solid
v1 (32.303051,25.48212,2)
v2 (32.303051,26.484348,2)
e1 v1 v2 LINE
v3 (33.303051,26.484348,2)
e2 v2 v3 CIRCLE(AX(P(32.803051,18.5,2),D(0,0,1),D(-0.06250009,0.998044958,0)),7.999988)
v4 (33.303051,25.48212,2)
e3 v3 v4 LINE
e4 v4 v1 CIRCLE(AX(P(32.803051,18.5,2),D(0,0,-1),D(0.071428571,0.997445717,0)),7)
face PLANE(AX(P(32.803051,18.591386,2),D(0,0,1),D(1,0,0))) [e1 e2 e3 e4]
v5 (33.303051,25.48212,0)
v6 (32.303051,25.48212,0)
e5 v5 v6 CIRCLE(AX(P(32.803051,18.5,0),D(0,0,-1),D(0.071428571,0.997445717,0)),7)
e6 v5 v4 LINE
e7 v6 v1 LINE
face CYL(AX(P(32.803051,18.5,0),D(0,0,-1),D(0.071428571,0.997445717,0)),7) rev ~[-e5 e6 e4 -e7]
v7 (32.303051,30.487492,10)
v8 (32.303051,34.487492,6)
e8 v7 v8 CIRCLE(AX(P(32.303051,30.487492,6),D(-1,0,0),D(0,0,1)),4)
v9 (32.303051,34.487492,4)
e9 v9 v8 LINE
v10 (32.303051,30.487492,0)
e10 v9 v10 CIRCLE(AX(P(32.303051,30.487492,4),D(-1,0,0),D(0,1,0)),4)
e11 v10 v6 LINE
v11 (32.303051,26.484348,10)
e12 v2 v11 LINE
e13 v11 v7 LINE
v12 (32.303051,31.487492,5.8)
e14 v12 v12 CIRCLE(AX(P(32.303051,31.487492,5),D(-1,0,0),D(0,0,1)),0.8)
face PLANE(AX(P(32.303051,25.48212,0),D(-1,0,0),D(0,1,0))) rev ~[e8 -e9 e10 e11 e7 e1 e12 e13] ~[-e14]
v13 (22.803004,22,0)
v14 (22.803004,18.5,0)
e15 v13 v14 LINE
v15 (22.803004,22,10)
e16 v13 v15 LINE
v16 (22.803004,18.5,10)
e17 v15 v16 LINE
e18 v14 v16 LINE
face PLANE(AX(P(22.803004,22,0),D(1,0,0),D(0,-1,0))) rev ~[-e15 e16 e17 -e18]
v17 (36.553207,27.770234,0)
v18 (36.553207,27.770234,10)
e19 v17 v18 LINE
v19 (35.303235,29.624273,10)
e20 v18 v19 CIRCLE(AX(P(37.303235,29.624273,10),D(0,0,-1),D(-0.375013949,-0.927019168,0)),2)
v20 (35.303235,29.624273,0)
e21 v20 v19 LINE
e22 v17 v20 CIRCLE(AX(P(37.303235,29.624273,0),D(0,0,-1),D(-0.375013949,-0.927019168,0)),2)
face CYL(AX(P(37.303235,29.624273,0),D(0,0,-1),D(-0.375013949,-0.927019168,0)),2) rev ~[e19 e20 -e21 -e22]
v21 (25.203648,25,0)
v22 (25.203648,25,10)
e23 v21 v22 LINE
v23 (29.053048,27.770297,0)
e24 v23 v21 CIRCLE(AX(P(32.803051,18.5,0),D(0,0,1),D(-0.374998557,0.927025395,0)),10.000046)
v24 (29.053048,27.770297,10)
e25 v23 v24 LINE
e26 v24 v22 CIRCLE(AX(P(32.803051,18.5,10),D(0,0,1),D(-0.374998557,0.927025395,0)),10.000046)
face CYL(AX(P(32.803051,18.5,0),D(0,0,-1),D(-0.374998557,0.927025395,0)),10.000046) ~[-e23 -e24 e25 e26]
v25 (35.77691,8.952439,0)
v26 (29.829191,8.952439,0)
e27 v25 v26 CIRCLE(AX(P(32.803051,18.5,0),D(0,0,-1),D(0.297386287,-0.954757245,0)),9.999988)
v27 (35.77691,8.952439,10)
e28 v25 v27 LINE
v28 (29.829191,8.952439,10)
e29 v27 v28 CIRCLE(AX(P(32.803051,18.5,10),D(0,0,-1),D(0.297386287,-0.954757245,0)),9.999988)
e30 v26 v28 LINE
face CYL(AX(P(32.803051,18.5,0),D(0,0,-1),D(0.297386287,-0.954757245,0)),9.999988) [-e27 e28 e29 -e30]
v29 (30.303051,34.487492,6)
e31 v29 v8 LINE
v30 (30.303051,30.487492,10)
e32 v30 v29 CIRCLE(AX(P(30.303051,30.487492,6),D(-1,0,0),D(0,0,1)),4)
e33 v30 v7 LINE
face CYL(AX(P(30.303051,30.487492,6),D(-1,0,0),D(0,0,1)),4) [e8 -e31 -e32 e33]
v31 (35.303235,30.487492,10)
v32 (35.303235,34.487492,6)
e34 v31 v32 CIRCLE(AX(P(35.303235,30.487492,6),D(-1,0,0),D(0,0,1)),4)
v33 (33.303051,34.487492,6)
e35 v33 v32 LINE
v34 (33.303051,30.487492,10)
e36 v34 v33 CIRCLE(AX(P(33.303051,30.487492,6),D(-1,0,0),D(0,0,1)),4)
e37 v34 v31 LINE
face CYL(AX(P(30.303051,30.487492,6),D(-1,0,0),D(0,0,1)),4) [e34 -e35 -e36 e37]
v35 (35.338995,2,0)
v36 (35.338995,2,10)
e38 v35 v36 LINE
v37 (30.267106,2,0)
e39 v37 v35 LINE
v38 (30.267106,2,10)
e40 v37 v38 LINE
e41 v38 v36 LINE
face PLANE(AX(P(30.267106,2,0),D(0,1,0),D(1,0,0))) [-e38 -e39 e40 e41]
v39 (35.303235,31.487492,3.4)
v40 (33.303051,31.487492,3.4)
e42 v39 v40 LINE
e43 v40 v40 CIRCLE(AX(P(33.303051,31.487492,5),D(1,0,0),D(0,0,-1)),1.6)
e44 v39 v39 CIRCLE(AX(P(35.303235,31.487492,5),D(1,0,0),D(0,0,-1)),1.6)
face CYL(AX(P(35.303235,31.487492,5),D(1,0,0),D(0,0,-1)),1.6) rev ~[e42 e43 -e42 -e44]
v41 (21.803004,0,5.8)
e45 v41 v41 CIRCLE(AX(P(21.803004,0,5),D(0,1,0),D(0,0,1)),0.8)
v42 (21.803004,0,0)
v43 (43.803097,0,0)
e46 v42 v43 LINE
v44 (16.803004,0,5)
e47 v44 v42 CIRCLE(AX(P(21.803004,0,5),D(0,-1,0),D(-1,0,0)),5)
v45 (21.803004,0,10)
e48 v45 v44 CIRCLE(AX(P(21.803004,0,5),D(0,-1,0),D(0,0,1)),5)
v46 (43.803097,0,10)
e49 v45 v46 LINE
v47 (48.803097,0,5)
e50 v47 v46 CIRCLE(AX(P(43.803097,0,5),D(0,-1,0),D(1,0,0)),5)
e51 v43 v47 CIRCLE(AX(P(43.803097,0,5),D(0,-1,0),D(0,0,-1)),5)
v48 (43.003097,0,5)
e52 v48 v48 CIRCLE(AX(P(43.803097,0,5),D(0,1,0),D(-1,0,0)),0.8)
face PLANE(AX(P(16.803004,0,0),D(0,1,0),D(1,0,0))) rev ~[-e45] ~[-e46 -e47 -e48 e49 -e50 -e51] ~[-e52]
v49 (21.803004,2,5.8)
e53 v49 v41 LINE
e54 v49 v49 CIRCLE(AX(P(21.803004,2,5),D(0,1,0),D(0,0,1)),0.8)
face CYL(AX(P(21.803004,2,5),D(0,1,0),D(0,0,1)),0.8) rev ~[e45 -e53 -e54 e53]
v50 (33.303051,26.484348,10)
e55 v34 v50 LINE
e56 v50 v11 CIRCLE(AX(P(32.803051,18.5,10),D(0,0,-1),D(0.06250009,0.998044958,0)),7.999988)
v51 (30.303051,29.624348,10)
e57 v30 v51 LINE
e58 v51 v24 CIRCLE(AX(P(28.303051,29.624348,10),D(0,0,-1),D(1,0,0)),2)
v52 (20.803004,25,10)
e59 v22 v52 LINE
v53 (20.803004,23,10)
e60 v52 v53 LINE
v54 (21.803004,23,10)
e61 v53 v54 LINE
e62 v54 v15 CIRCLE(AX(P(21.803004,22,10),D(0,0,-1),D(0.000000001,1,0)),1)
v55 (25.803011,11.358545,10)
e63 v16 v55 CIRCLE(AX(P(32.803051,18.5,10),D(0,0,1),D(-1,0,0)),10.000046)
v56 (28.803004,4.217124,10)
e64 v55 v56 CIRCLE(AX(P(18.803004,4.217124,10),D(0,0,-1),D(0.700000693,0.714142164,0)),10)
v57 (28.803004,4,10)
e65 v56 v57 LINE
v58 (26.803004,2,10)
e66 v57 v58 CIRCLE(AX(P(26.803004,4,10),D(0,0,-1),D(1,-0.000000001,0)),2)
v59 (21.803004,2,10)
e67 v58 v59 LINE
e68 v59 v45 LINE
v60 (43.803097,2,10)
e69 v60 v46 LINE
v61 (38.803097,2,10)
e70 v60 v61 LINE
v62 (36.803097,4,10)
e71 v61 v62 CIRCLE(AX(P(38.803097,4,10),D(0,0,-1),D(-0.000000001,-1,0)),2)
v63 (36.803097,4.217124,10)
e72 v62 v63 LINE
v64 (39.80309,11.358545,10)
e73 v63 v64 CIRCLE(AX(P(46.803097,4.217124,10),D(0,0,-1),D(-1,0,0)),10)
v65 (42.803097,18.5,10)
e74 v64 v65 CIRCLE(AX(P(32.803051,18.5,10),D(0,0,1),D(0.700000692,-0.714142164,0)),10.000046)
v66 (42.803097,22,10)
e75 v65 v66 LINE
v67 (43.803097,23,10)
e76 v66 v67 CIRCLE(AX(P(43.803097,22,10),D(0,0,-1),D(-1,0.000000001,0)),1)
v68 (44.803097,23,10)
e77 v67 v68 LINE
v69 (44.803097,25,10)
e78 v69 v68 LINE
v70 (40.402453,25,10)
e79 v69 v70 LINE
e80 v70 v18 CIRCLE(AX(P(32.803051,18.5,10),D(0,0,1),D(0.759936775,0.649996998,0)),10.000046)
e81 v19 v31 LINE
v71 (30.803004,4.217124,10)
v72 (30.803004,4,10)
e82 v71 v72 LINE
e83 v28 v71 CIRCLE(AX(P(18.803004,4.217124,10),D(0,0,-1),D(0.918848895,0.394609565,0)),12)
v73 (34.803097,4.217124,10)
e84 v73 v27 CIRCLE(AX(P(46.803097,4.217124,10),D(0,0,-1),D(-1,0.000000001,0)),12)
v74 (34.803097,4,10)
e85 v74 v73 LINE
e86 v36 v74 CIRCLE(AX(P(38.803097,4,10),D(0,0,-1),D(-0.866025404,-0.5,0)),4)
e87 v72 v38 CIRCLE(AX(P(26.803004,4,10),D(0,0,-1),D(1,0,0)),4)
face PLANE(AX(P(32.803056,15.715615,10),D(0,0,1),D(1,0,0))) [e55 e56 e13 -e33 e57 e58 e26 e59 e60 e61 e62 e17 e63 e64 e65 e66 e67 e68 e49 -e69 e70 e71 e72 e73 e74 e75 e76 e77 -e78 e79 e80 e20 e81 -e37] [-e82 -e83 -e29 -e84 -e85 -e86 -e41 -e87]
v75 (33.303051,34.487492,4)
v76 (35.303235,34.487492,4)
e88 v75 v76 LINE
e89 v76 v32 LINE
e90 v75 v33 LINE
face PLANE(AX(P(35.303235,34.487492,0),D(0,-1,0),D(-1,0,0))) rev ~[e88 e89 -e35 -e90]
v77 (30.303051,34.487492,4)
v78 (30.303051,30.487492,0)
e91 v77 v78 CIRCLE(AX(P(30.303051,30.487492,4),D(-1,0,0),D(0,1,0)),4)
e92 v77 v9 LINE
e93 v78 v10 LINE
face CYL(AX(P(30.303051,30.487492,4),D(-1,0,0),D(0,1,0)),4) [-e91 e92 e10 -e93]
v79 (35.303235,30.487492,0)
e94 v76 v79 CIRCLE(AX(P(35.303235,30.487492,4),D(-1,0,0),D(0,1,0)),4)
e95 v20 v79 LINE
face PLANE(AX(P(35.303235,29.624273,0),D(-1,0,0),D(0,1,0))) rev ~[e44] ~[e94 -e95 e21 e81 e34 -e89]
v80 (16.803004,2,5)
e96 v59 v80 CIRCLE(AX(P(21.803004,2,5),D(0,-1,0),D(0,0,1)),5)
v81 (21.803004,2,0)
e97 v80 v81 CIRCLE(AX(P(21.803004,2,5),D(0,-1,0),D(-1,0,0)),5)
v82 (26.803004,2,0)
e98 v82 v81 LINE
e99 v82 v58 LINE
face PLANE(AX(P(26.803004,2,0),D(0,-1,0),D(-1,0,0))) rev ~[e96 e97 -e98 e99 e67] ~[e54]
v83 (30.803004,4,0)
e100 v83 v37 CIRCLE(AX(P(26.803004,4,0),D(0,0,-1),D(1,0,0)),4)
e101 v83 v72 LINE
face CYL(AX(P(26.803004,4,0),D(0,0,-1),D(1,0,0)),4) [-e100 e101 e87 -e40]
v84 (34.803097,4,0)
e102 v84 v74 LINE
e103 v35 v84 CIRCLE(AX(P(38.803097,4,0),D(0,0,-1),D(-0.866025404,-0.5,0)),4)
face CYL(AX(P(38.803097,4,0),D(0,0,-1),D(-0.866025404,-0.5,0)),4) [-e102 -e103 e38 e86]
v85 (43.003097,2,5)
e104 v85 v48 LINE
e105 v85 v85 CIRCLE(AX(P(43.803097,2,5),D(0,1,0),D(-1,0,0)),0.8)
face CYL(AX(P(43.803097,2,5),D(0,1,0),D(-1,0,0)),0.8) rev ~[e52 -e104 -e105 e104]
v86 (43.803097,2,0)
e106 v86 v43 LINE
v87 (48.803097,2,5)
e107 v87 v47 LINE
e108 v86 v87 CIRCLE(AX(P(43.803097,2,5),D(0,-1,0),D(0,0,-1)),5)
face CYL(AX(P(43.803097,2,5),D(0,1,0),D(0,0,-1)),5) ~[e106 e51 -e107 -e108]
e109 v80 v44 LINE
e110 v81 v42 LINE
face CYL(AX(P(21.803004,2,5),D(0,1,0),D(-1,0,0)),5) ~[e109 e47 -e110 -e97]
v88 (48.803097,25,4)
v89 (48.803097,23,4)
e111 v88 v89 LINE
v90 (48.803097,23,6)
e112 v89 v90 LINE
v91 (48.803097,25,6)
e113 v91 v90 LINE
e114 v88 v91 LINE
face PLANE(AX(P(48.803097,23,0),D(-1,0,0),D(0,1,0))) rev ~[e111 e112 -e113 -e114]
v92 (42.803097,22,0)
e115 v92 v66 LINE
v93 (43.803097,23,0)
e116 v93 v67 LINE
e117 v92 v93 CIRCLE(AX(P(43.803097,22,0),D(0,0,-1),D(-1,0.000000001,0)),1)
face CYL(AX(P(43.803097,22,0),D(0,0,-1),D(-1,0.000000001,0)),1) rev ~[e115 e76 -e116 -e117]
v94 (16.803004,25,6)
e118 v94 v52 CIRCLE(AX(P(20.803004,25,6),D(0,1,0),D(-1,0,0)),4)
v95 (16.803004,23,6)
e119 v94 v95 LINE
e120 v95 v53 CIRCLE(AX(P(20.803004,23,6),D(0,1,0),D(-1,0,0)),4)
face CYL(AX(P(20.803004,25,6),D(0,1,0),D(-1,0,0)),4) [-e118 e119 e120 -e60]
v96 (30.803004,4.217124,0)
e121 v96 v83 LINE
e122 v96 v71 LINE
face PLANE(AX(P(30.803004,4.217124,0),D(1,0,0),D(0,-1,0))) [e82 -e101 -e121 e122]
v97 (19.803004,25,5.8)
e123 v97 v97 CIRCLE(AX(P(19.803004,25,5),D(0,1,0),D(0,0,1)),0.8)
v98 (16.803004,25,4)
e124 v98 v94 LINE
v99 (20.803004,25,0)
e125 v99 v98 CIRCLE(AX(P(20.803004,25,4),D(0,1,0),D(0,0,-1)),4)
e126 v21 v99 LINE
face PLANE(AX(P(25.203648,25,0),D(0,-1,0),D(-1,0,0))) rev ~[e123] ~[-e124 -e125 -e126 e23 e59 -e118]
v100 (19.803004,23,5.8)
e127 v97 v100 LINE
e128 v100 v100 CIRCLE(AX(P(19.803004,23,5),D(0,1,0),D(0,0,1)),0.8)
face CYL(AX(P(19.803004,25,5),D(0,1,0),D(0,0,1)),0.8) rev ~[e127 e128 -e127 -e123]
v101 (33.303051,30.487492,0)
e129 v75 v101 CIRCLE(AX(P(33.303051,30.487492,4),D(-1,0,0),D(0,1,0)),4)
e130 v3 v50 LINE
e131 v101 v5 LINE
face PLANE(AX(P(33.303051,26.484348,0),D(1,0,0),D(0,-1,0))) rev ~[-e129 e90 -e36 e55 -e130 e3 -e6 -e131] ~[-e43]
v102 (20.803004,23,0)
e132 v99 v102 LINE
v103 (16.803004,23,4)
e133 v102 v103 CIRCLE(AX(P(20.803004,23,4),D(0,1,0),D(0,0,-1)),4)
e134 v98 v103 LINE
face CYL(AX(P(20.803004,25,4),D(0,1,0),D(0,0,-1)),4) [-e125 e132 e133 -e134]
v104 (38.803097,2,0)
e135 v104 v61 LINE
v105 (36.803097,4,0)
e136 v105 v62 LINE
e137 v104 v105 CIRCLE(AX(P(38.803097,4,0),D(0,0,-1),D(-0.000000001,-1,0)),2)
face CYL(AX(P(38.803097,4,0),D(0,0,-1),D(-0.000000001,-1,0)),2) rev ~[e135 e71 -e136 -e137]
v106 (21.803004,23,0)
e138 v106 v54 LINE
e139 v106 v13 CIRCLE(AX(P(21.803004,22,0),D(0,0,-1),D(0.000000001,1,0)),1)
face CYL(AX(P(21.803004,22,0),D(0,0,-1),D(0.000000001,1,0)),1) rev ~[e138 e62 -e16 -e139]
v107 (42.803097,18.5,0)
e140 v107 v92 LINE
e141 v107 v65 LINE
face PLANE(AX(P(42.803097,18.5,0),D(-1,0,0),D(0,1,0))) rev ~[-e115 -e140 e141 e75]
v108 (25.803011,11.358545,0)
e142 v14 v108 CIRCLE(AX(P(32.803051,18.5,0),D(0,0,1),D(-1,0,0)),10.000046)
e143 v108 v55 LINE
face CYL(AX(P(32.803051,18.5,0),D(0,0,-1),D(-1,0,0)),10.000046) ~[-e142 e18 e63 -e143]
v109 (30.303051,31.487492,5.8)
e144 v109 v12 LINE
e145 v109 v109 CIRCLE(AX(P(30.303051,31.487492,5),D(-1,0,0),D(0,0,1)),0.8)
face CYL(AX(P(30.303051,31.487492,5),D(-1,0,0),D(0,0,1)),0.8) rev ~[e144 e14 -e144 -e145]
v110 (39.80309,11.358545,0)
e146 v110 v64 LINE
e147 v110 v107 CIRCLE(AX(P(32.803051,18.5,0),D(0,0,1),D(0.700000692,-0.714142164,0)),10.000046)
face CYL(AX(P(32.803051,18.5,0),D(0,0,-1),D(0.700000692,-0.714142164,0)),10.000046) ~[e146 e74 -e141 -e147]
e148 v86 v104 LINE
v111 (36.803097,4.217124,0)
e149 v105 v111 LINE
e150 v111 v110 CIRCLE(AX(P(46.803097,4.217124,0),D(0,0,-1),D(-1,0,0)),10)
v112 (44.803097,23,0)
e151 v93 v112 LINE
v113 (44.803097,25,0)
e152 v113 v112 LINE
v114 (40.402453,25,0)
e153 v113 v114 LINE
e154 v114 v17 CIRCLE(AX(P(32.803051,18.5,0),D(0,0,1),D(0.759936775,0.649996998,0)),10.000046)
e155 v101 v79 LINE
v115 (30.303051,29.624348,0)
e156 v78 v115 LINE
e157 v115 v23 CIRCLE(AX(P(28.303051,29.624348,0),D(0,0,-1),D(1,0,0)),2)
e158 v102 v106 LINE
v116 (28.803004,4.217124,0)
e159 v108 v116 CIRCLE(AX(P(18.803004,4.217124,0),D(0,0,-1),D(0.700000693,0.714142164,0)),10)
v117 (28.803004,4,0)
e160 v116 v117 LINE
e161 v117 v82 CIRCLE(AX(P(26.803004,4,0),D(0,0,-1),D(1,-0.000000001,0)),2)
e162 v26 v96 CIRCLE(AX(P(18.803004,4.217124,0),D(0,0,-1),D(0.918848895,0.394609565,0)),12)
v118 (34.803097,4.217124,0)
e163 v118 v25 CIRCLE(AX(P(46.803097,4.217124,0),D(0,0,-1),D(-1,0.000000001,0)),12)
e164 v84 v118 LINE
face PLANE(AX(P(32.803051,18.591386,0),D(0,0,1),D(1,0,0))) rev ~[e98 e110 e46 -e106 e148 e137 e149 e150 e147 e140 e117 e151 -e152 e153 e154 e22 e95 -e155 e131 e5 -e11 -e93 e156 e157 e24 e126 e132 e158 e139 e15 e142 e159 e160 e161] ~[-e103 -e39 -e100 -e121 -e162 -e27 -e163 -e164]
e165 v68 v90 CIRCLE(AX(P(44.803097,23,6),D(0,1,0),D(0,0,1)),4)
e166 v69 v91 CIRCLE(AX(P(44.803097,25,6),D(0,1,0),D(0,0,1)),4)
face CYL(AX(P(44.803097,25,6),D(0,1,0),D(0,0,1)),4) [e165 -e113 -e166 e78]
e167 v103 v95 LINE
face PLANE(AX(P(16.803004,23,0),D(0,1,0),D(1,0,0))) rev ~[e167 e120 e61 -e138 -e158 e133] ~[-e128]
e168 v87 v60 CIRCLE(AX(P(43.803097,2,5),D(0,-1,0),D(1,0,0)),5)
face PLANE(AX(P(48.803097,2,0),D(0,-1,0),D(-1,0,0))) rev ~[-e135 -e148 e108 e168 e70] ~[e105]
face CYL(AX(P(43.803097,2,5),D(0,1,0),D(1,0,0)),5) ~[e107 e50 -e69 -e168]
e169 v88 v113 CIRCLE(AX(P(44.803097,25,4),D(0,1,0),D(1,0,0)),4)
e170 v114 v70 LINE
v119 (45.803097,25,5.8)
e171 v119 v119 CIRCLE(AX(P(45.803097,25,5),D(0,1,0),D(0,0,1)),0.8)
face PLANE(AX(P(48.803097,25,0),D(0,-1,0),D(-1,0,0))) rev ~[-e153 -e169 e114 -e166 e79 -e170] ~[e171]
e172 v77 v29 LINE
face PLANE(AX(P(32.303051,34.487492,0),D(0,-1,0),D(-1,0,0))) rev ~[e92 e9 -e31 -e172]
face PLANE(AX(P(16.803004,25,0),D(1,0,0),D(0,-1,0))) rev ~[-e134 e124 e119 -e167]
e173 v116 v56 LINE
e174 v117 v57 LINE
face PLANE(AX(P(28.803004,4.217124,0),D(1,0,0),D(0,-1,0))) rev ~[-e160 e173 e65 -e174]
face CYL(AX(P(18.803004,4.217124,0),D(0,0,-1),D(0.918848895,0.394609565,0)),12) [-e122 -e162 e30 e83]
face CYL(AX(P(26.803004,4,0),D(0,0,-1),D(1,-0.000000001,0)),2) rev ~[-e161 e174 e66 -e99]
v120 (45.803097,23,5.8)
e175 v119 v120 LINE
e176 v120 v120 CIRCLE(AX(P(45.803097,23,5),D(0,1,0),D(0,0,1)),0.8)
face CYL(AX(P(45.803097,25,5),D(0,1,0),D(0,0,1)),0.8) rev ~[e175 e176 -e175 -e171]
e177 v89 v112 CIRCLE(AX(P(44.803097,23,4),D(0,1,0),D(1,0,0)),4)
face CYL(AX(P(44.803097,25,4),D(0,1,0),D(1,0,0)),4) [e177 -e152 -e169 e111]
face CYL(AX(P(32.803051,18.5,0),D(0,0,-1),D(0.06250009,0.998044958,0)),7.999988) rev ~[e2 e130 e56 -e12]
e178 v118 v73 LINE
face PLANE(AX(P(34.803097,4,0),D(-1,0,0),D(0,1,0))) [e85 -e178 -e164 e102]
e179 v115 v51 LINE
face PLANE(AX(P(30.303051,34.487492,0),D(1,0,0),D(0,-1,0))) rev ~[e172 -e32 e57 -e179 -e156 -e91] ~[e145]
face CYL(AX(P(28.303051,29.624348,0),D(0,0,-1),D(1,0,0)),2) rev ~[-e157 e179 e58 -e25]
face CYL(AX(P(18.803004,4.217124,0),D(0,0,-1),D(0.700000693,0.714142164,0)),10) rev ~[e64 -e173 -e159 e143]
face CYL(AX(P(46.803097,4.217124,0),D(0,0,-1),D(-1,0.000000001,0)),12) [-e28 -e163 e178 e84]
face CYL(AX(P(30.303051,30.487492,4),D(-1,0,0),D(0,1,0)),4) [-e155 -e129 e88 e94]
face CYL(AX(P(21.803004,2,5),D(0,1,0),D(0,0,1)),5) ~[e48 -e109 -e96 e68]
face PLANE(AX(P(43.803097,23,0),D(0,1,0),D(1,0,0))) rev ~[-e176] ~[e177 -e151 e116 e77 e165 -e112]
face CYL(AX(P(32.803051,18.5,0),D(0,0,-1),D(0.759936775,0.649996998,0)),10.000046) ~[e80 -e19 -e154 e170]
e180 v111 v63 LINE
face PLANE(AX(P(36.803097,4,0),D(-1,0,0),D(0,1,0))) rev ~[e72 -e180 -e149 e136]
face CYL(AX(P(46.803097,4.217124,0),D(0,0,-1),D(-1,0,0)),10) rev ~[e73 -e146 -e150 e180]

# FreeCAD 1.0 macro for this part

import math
import FreeCAD as App
import Part
import Sketcher
from FreeCAD import Vector
Q = App.Units.Quantity

doc = App.newDocument("Part")
body = doc.addObject("PartDesign::Body", "Body")

sketch1 = doc.addObject("Sketcher::SketchObject", "Sketch")
body.addObject(sketch1)
sketch1.AttachmentSupport = (doc.XY_Plane, [""])
sketch1.MapMode = "FlatFace"
sketch1.addGeometry(Part.LineSegment(Vector(16.8, 0, 0), Vector(48.8, 0, 0)), False)
sketch1.addGeometry(Part.LineSegment(Vector(48.8, 0, 0), Vector(48.8, 2, 0)), False)
sketch1.addGeometry(Part.LineSegment(Vector(48.8, 2, 0), Vector(38.8, 2, 0)), False)
sketch1.addGeometry(Part.ArcOfCircle(Part.Circle(Vector(38.8, 4, 0), Vector(0, 0, 1), 2), math.radians(-180), math.radians(-90)), False)
sketch1.addGeometry(Part.LineSegment(Vector(36.8, 4, 0), Vector(36.8, 4.22, 0)), False)
sketch1.addGeometry(Part.ArcOfCircle(Part.Circle(Vector(46.8, 4.22, 0), Vector(0, 0, 1), 10), math.radians(134), math.radians(180)), False)
sketch1.addGeometry(Part.ArcOfCircle(Part.Circle(Vector(32.8, 18.5, 0), Vector(0, 0, 1), 10), math.radians(-46), math.radians(0)), False)
sketch1.addGeometry(Part.LineSegment(Vector(42.8, 18.5, 0), Vector(42.8, 22, 0)), False)
sketch1.addGeometry(Part.ArcOfCircle(Part.Circle(Vector(43.8, 22, 0), Vector(0, 0, 1), 1), math.radians(90), math.radians(180)), False)
sketch1.addGeometry(Part.LineSegment(Vector(43.8, 23, 0), Vector(48.8, 23, 0)), False)
sketch1.addGeometry(Part.LineSegment(Vector(48.8, 23, 0), Vector(48.8, 25, 0)), False)
sketch1.addGeometry(Part.LineSegment(Vector(48.8, 25, 0), Vector(40.4, 25, 0)), False)
sketch1.addGeometry(Part.ArcOfCircle(Part.Circle(Vector(32.8, 18.5, 0), Vector(0, 0, 1), 10), math.radians(41), math.radians(68)), False)
sketch1.addGeometry(Part.ArcOfCircle(Part.Circle(Vector(37.3, 29.62, 0), Vector(0, 0, 1), 2), math.radians(180), math.radians(248)), False)
sketch1.addGeometry(Part.LineSegment(Vector(35.3, 29.62, 0), Vector(35.3, 34.49, 0)), False)
sketch1.addGeometry(Part.LineSegment(Vector(35.3, 34.49, 0), Vector(33.3, 34.49, 0)), False)
sketch1.addGeometry(Part.LineSegment(Vector(33.3, 34.49, 0), Vector(33.3, 26.48, 0)), False)
sketch1.addGeometry(Part.ArcOfCircle(Part.Circle(Vector(32.8, 18.5, 0), Vector(0, 0, 1), 8), math.radians(94), math.radians(446)), False)
sketch1.addGeometry(Part.LineSegment(Vector(32.3, 26.48, 0), Vector(32.3, 34.49, 0)), False)
sketch1.addGeometry(Part.LineSegment(Vector(32.3, 34.49, 0), Vector(30.3, 34.49, 0)), False)
sketch1.addGeometry(Part.LineSegment(Vector(30.3, 34.49, 0), Vector(30.3, 29.62, 0)), False)
sketch1.addGeometry(Part.ArcOfCircle(Part.Circle(Vector(28.3, 29.62, 0), Vector(0, 0, 1), 2), math.radians(-68), math.radians(0)), False)
sketch1.addGeometry(Part.ArcOfCircle(Part.Circle(Vector(32.8, 18.5, 0), Vector(0, 0, 1), 10), math.radians(112), math.radians(139)), False)
sketch1.addGeometry(Part.LineSegment(Vector(25.2, 25, 0), Vector(16.8, 25, 0)), False)
sketch1.addGeometry(Part.LineSegment(Vector(16.8, 25, 0), Vector(16.8, 23, 0)), False)
sketch1.addGeometry(Part.LineSegment(Vector(16.8, 23, 0), Vector(21.8, 23, 0)), False)
sketch1.addGeometry(Part.ArcOfCircle(Part.Circle(Vector(21.8, 22, 0), Vector(0, 0, 1), 1), math.radians(0), math.radians(90)), False)
sketch1.addGeometry(Part.LineSegment(Vector(22.8, 22, 0), Vector(22.8, 18.5, 0)), False)
sketch1.addGeometry(Part.ArcOfCircle(Part.Circle(Vector(32.8, 18.5, 0), Vector(0, 0, 1), 10), math.radians(180), math.radians(226)), False)
sketch1.addGeometry(Part.ArcOfCircle(Part.Circle(Vector(18.8, 4.22, 0), Vector(0, 0, 1), 10), math.radians(0), math.radians(46)), False)
sketch1.addGeometry(Part.LineSegment(Vector(28.8, 4.22, 0), Vector(28.8, 4, 0)), False)
sketch1.addGeometry(Part.ArcOfCircle(Part.Circle(Vector(26.8, 4, 0), Vector(0, 0, 1), 2), math.radians(-90), math.radians(0)), False)
sketch1.addGeometry(Part.LineSegment(Vector(26.8, 2, 0), Vector(16.8, 2, 0)), False)
sketch1.addGeometry(Part.LineSegment(Vector(16.8, 2, 0), Vector(16.8, 0, 0)), False)
sketch1.addGeometry(Part.LineSegment(Vector(34.8, 4.22, 0), Vector(34.8, 4, 0)), False)
sketch1.addGeometry(Part.ArcOfCircle(Part.Circle(Vector(38.8, 4, 0), Vector(0, 0, 1), 4), math.radians(-180), math.radians(-150)), False)
sketch1.addGeometry(Part.LineSegment(Vector(35.34, 2, 0), Vector(30.27, 2, 0)), False)
sketch1.addGeometry(Part.ArcOfCircle(Part.Circle(Vector(26.8, 4, 0), Vector(0, 0, 1), 4), math.radians(-30), math.radians(0)), False)
sketch1.addGeometry(Part.LineSegment(Vector(30.8, 4, 0), Vector(30.8, 4.22, 0)), False)
sketch1.addGeometry(Part.ArcOfCircle(Part.Circle(Vector(18.8, 4.22, 0), Vector(0, 0, 1), 12), math.radians(0), math.radians(23)), False)
sketch1.addGeometry(Part.ArcOfCircle(Part.Circle(Vector(32.8, 18.5, 0), Vector(0, 0, 1), 10), math.radians(-107), math.radians(-73)), False)
sketch1.addGeometry(Part.ArcOfCircle(Part.Circle(Vector(46.8, 4.22, 0), Vector(0, 0, 1), 12), math.radians(157), math.radians(180)), False)
sketch1.addConstraint(Sketcher.Constraint("Coincident", 0, 2, 1, 1))
sketch1.addConstraint(Sketcher.Constraint("Coincident", 1, 2, 2, 1))
sketch1.addConstraint(Sketcher.Constraint("Tangent", 2, 2, 3, 2))
sketch1.addConstraint(Sketcher.Constraint("Tangent", 3, 1, 4, 1))
sketch1.addConstraint(Sketcher.Constraint("Tangent", 4, 2, 5, 2))
sketch1.addConstraint(Sketcher.Constraint("Tangent", 5, 1, 6, 1))
sketch1.addConstraint(Sketcher.Constraint("Tangent", 6, 2, 7, 1))
sketch1.addConstraint(Sketcher.Constraint("Tangent", 7, 2, 8, 2))
sketch1.addConstraint(Sketcher.Constraint("Tangent", 8, 1, 9, 1))
sketch1.addConstraint(Sketcher.Constraint("Coincident", 9, 2, 10, 1))
sketch1.addConstraint(Sketcher.Constraint("Coincident", 10, 2, 11, 1))
sketch1.addConstraint(Sketcher.Constraint("Coincident", 11, 2, 12, 1))
sketch1.addConstraint(Sketcher.Constraint("Tangent", 12, 2, 13, 2))
sketch1.addConstraint(Sketcher.Constraint("Tangent", 13, 1, 14, 1))
sketch1.addConstraint(Sketcher.Constraint("Coincident", 14, 2, 15, 1))
sketch1.addConstraint(Sketcher.Constraint("Coincident", 15, 2, 16, 1))
sketch1.addConstraint(Sketcher.Constraint("Coincident", 16, 2, 17, 2))
sketch1.addConstraint(Sketcher.Constraint("Coincident", 17, 1, 18, 1))
sketch1.addConstraint(Sketcher.Constraint("Coincident", 18, 2, 19, 1))
sketch1.addConstraint(Sketcher.Constraint("Coincident", 19, 2, 20, 1))
sketch1.addConstraint(Sketcher.Constraint("Tangent", 20, 2, 21, 2))
sketch1.addConstraint(Sketcher.Constraint("Tangent", 21, 1, 22, 1))
sketch1.addConstraint(Sketcher.Constraint("Coincident", 22, 2, 23, 1))
sketch1.addConstraint(Sketcher.Constraint("Coincident", 23, 2, 24, 1))
sketch1.addConstraint(Sketcher.Constraint("Coincident", 24, 2, 25, 1))
sketch1.addConstraint(Sketcher.Constraint("Tangent", 25, 2, 26, 2))
sketch1.addConstraint(Sketcher.Constraint("Tangent", 26, 1, 27, 1))
sketch1.addConstraint(Sketcher.Constraint("Tangent", 27, 2, 28, 1))
sketch1.addConstraint(Sketcher.Constraint("Tangent", 28, 2, 29, 2))
sketch1.addConstraint(Sketcher.Constraint("Tangent", 29, 1, 30, 1))
sketch1.addConstraint(Sketcher.Constraint("Tangent", 30, 2, 31, 2))
sketch1.addConstraint(Sketcher.Constraint("Tangent", 31, 1, 32, 1))
sketch1.addConstraint(Sketcher.Constraint("Coincident", 32, 2, 33, 1))
sketch1.addConstraint(Sketcher.Constraint("Coincident", 33, 2, 0, 1))
sketch1.addConstraint(Sketcher.Constraint("Tangent", 34, 2, 35, 1))
sketch1.addConstraint(Sketcher.Constraint("Coincident", 35, 2, 36, 1))
sketch1.addConstraint(Sketcher.Constraint("Coincident", 36, 2, 37, 1))
sketch1.addConstraint(Sketcher.Constraint("Tangent", 37, 2, 38, 1))
sketch1.addConstraint(Sketcher.Constraint("Tangent", 38, 2, 39, 1))
sketch1.addConstraint(Sketcher.Constraint("Coincident", 39, 2, 40, 1))
sketch1.addConstraint(Sketcher.Constraint("Coincident", 40, 2, 41, 1))
sketch1.addConstraint(Sketcher.Constraint("Tangent", 41, 2, 34, 1))
sketch1.addConstraint(Sketcher.Constraint("Horizontal", 0))
sketch1.addConstraint(Sketcher.Constraint("Vertical", 1))
sketch1.addConstraint(Sketcher.Constraint("Horizontal", 2))
sketch1.addConstraint(Sketcher.Constraint("Vertical", 4))
sketch1.addConstraint(Sketcher.Constraint("Vertical", 7))
sketch1.addConstraint(Sketcher.Constraint("Horizontal", 9))
sketch1.addConstraint(Sketcher.Constraint("Vertical", 10))
sketch1.addConstraint(Sketcher.Constraint("Horizontal", 11))
sketch1.addConstraint(Sketcher.Constraint("Vertical", 14))
sketch1.addConstraint(Sketcher.Constraint("Horizontal", 15))
sketch1.addConstraint(Sketcher.Constraint("Vertical", 16))
sketch1.addConstraint(Sketcher.Constraint("Vertical", 18))
sketch1.addConstraint(Sketcher.Constraint("Horizontal", 19))
sketch1.addConstraint(Sketcher.Constraint("Vertical", 20))
sketch1.addConstraint(Sketcher.Constraint("Horizontal", 23))
sketch1.addConstraint(Sketcher.Constraint("Vertical", 24))
sketch1.addConstraint(Sketcher.Constraint("Horizontal", 25))
sketch1.addConstraint(Sketcher.Constraint("Vertical", 27))
sketch1.addConstraint(Sketcher.Constraint("Vertical", 30))
sketch1.addConstraint(Sketcher.Constraint("Horizontal", 32))
sketch1.addConstraint(Sketcher.Constraint("Vertical", 33))
sketch1.addConstraint(Sketcher.Constraint("Vertical", 34))
sketch1.addConstraint(Sketcher.Constraint("Horizontal", 36))
sketch1.addConstraint(Sketcher.Constraint("Vertical", 38))
sketch1.addConstraint(Sketcher.Constraint("Coincident", 12, 3, 6, 3))
sketch1.addConstraint(Sketcher.Constraint("Coincident", 17, 3, 6, 3))
sketch1.addConstraint(Sketcher.Constraint("Coincident", 22, 3, 6, 3))
sketch1.addConstraint(Sketcher.Constraint("Coincident", 28, 3, 6, 3))
sketch1.addConstraint(Sketcher.Constraint("Coincident", 35, 3, 3, 3))
sketch1.addConstraint(Sketcher.Constraint("Coincident", 37, 3, 31, 3))
sketch1.addConstraint(Sketcher.Constraint("Coincident", 39, 3, 29, 3))
sketch1.addConstraint(Sketcher.Constraint("Coincident", 40, 3, 6, 3))
sketch1.addConstraint(Sketcher.Constraint("Coincident", 41, 3, 5, 3))
sketch1.addConstraint(Sketcher.Constraint("Equal", 6, 12))
sketch1.addConstraint(Sketcher.Constraint("Equal", 3, 13))
sketch1.addConstraint(Sketcher.Constraint("Equal", 13, 21))
sketch1.addConstraint(Sketcher.Constraint("Equal", 12, 22))
sketch1.addConstraint(Sketcher.Constraint("Equal", 8, 26))
sketch1.addConstraint(Sketcher.Constraint("Equal", 22, 28))
sketch1.addConstraint(Sketcher.Constraint("Equal", 5, 29))
sketch1.addConstraint(Sketcher.Constraint("Equal", 21, 31))
sketch1.addConstraint(Sketcher.Constraint("Equal", 35, 37))
sketch1.addConstraint(Sketcher.Constraint("PointOnObject", 0, 2, -1))
sketch1.addConstraint(Sketcher.Constraint("Horizontal", 8, 3, 26, 3))
sketch1.addConstraint(Sketcher.Constraint("Horizontal", 5, 3, 29, 3))
sketch1.addConstraint(Sketcher.Constraint("Horizontal", 3, 3, 31, 3))
sketch1.addConstraint(Sketcher.Constraint("Horizontal", 16, 2, 17, 1))
sketch1.addConstraint(Sketcher.Constraint("Horizontal", 15, 2, 18, 2))
sketch1.addConstraint(Sketcher.Constraint("Horizontal", 11, 2, 22, 2))
sketch1.addConstraint(Sketcher.Constraint("Horizontal", 32, 2, 35, 2))
sketch1.addConstraint(Sketcher.Constraint("Vertical", 1, 2, 9, 2))
sketch1.addConstraint(Sketcher.Constraint("Vertical", 24, 2, 32, 2))
sketch1.addConstraint(Sketcher.Constraint("Equal", 11, 23))
sketch1.addConstraint(Sketcher.Constraint("Equal", 19, 1))
sketch1.addConstraint(Sketcher.Constraint("Equal", 1, 10))
sketch1.addConstraint(Sketcher.Constraint("Radius", 3, Q("2 mm")))
sketch1.addConstraint(Sketcher.Constraint("Radius", 5, Q("10 mm")))
sketch1.addConstraint(Sketcher.Constraint("Radius", 8, Q("1 mm")))
sketch1.addConstraint(Sketcher.Constraint("Radius", 35, Q("4 mm")))
sketch1.addConstraint(Sketcher.Constraint("DistanceX", 2, 2, 2, 1, Q("10 mm")))
sketch1.addConstraint(Sketcher.Constraint("DistanceX", 9, 1, 9, 2, Q("5 mm")))
sketch1.addConstraint(Sketcher.Constraint("DistanceX", 19, 2, 19, 1, Q("2 mm")))
sketch1.addConstraint(Sketcher.Constraint("DistanceY", 7, 1, 7, 2, Q("3.5 mm")))
sketch1.addConstraint(Sketcher.Constraint("DistanceY", -1, 1, 8, 3, Q("22 mm")))
sketch1.addConstraint(Sketcher.Constraint("DistanceX", 21, 3, 15, 2, Q("5 mm")))
sketch1.addConstraint(Sketcher.Constraint("Radius", 17, Q("7.999988 mm")))
sketch1.addConstraint(Sketcher.Constraint("Radius", 40, Q("9.999988 mm")))
sketch1.addConstraint(Sketcher.Constraint("DistanceY", 16, 2, 21, 3, Q("3.139999 mm")))
sketch1.addConstraint(Sketcher.Constraint("DistanceY", 14, 1, 14, 2, Q("4.863219 mm")))
sketch1.addConstraint(Sketcher.Constraint("DistanceX", 15, 2, 15, 1, Q("2.000185 mm")))
sketch1.addConstraint(Sketcher.Constraint("DistanceX", -1, 1, 6, 3, Q("32.803051 mm")))
pad1 = doc.addObject("PartDesign::Pad", "Pad")
body.addObject(pad1)
pad1.Profile = sketch1
pad1.Length = 10

sketch2 = doc.addObject("Sketcher::SketchObject", "Sketch001")
body.addObject(sketch2)
sketch2.AttachmentSupport = (doc.XZ_Plane, [""])
sketch2.MapMode = "FlatFace"
sketch2.AttachmentOffset = App.Placement(Vector(0, 0, -2), App.Rotation())
sketch2.addGeometry(Part.ArcOfCircle(Part.Circle(Vector(43.8, 5, 0), Vector(0, 0, 1), 5), math.radians(0), math.radians(90)), False)
sketch2.addGeometry(Part.LineSegment(Vector(43.8, 10, 0), Vector(48.8, 10, 0)), False)
sketch2.addGeometry(Part.LineSegment(Vector(48.8, 10, 0), Vector(48.8, 5, 0)), False)
sketch2.addGeometry(Part.ArcOfCircle(Part.Circle(Vector(43.8, 5, 0), Vector(0, 0, 1), 5), math.radians(-90), math.radians(0)), False)
sketch2.addGeometry(Part.LineSegment(Vector(48.8, 5, 0), Vector(48.8, 0, 0)), False)
sketch2.addGeometry(Part.LineSegment(Vector(48.8, 0, 0), Vector(43.8, 0, 0)), False)
sketch2.addGeometry(Part.Circle(Vector(43.8, 5, 0), Vector(0, 0, 1), 0.8), False)
sketch2.addConstraint(Sketcher.Constraint("Tangent", 0, 2, 1, 1))
sketch2.addConstraint(Sketcher.Constraint("Coincident", 1, 2, 2, 1))
sketch2.addConstraint(Sketcher.Constraint("Tangent", 2, 2, 0, 1))
sketch2.addConstraint(Sketcher.Constraint("Tangent", 3, 2, 4, 1))
sketch2.addConstraint(Sketcher.Constraint("Coincident", 4, 2, 5, 1))
sketch2.addConstraint(Sketcher.Constraint("Tangent", 5, 2, 3, 1))
sketch2.addConstraint(Sketcher.Constraint("Horizontal", 1))
sketch2.addConstraint(Sketcher.Constraint("Vertical", 2))
sketch2.addConstraint(Sketcher.Constraint("Vertical", 4))
sketch2.addConstraint(Sketcher.Constraint("Horizontal", 5))
sketch2.addConstraint(Sketcher.Constraint("Coincident", 3, 3, 0, 3))
sketch2.addConstraint(Sketcher.Constraint("Coincident", 6, 3, 0, 3))
sketch2.addConstraint(Sketcher.Constraint("Equal", 0, 3))
sketch2.addConstraint(Sketcher.Constraint("PointOnObject", 4, 2, -1))
sketch2.addConstraint(Sketcher.Constraint("Radius", 0, Q("5 mm")))
sketch2.addConstraint(Sketcher.Constraint("Diameter", 6, Q("1.6 mm")))
sketch2.addConstraint(Sketcher.Constraint("DistanceX", -1, 1, 0, 3, Q("43.803097 mm")))
pocket1 = doc.addObject("PartDesign::Pocket", "Pocket")
body.addObject(pocket1)
pocket1.Profile = sketch2
pocket1.Length = 2
pocket1.Reversed = True

sketch3 = doc.addObject("Sketcher::SketchObject", "Sketch002")
body.addObject(sketch3)
sketch3.AttachmentSupport = (doc.XZ_Plane, [""])
sketch3.MapMode = "FlatFace"
sketch3.AttachmentOffset = App.Placement(Vector(0, 0, -2), App.Rotation())
sketch3.addGeometry(Part.LineSegment(Vector(16.8, 10, 0), Vector(21.8, 10, 0)), False)
sketch3.addGeometry(Part.ArcOfCircle(Part.Circle(Vector(21.8, 5, 0), Vector(0, 0, 1), 5), math.radians(90), math.radians(180)), False)
sketch3.addGeometry(Part.LineSegment(Vector(16.8, 5, 0), Vector(16.8, 10, 0)), False)
sketch3.addGeometry(Part.LineSegment(Vector(16.8, 0, 0), Vector(16.8, 5, 0)), False)
sketch3.addGeometry(Part.ArcOfCircle(Part.Circle(Vector(21.8, 5, 0), Vector(0, 0, 1), 5), math.radians(180), math.radians(270)), False)
sketch3.addGeometry(Part.LineSegment(Vector(21.8, 0, 0), Vector(16.8, 0, 0)), False)
sketch3.addGeometry(Part.Circle(Vector(21.8, 5, 0), Vector(0, 0, 1), 0.8), False)
sketch3.addConstraint(Sketcher.Constraint("Tangent", 0, 2, 1, 1))
sketch3.addConstraint(Sketcher.Constraint("Tangent", 1, 2, 2, 1))
sketch3.addConstraint(Sketcher.Constraint("Coincident", 2, 2, 0, 1))
sketch3.addConstraint(Sketcher.Constraint("Tangent", 3, 2, 4, 1))
sketch3.addConstraint(Sketcher.Constraint("Tangent", 4, 2, 5, 1))
sketch3.addConstraint(Sketcher.Constraint("Coincident", 5, 2, 3, 1))
sketch3.addConstraint(Sketcher.Constraint("Horizontal", 0))
sketch3.addConstraint(Sketcher.Constraint("Vertical", 2))
sketch3.addConstraint(Sketcher.Constraint("Vertical", 3))
sketch3.addConstraint(Sketcher.Constraint("Horizontal", 5))
sketch3.addConstraint(Sketcher.Constraint("Coincident", 4, 3, 1, 3))
sketch3.addConstraint(Sketcher.Constraint("Coincident", 6, 3, 1, 3))
sketch3.addConstraint(Sketcher.Constraint("Equal", 1, 4))
sketch3.addConstraint(Sketcher.Constraint("PointOnObject", 4, 2, -1))
sketch3.addConstraint(Sketcher.Constraint("Radius", 1, Q("5 mm")))
sketch3.addConstraint(Sketcher.Constraint("Diameter", 6, Q("1.6 mm")))
sketch3.addConstraint(Sketcher.Constraint("DistanceX", -1, 1, 1, 3, Q("21.803004 mm")))
pocket2 = doc.addObject("PartDesign::Pocket", "Pocket001")
body.addObject(pocket2)
pocket2.Profile = sketch3
pocket2.Length = 2
pocket2.Reversed = True

sketch4 = doc.addObject("Sketcher::SketchObject", "Sketch003")
body.addObject(sketch4)
sketch4.AttachmentSupport = (doc.XZ_Plane, [""])
sketch4.MapMode = "FlatFace"
sketch4.AttachmentOffset = App.Placement(Vector(0, 0, -25), App.Rotation())
sketch4.addGeometry(Part.Circle(Vector(19.8, 5, 0), Vector(0, 0, 1), 0.8), False)
sketch4.addGeometry(Part.Circle(Vector(45.8, 5, 0), Vector(0, 0, 1), 0.8), False)
sketch4.addGeometry(Part.LineSegment(Vector(16.8, 10, 0), Vector(20.8, 10, 0)), False)
sketch4.addGeometry(Part.ArcOfCircle(Part.Circle(Vector(20.8, 6, 0), Vector(0, 0, 1), 4), math.radians(90), math.radians(180)), False)
sketch4.addGeometry(Part.LineSegment(Vector(16.8, 6, 0), Vector(16.8, 10, 0)), False)
sketch4.addGeometry(Part.LineSegment(Vector(16.8, 0, 0), Vector(16.8, 4, 0)), False)
sketch4.addGeometry(Part.ArcOfCircle(Part.Circle(Vector(20.8, 4, 0), Vector(0, 0, 1), 4), math.radians(180), math.radians(270)), False)
sketch4.addGeometry(Part.LineSegment(Vector(20.8, 0, 0), Vector(16.8, 0, 0)), False)
sketch4.addGeometry(Part.LineSegment(Vector(48.8, 0, 0), Vector(44.8, 0, 0)), False)
sketch4.addGeometry(Part.ArcOfCircle(Part.Circle(Vector(44.8, 4, 0), Vector(0, 0, 1), 4), math.radians(-90), math.radians(0)), False)
sketch4.addGeometry(Part.LineSegment(Vector(48.8, 4, 0), Vector(48.8, 0, 0)), False)
sketch4.addGeometry(Part.LineSegment(Vector(48.8, 10, 0), Vector(48.8, 6, 0)), False)
sketch4.addGeometry(Part.ArcOfCircle(Part.Circle(Vector(44.8, 6, 0), Vector(0, 0, 1), 4), math.radians(0), math.radians(90)), False)
sketch4.addGeometry(Part.LineSegment(Vector(44.8, 10, 0), Vector(48.8, 10, 0)), False)
sketch4.addConstraint(Sketcher.Constraint("Tangent", 2, 2, 3, 1))
sketch4.addConstraint(Sketcher.Constraint("Tangent", 3, 2, 4, 1))
sketch4.addConstraint(Sketcher.Constraint("Coincident", 4, 2, 2, 1))
sketch4.addConstraint(Sketcher.Constraint("Tangent", 5, 2, 6, 1))
sketch4.addConstraint(Sketcher.Constraint("Tangent", 6, 2, 7, 1))
sketch4.addConstraint(Sketcher.Constraint("Coincident", 7, 2, 5, 1))
sketch4.addConstraint(Sketcher.Constraint("Tangent", 8, 2, 9, 1))
sketch4.addConstraint(Sketcher.Constraint("Tangent", 9, 2, 10, 1))
sketch4.addConstraint(Sketcher.Constraint("Coincident", 10, 2, 8, 1))
sketch4.addConstraint(Sketcher.Constraint("Tangent", 11, 2, 12, 1))
sketch4.addConstraint(Sketcher.Constraint("Tangent", 12, 2, 13, 1))
sketch4.addConstraint(Sketcher.Constraint("Coincident", 13, 2, 11, 1))
sketch4.addConstraint(Sketcher.Constraint("Horizontal", 2))
sketch4.addConstraint(Sketcher.Constraint("Vertical", 4))
sketch4.addConstraint(Sketcher.Constraint("Vertical", 5))
sketch4.addConstraint(Sketcher.Constraint("Horizontal", 7))
sketch4.addConstraint(Sketcher.Constraint("Horizontal", 8))
sketch4.addConstraint(Sketcher.Constraint("Vertical", 10))
sketch4.addConstraint(Sketcher.Constraint("Vertical", 11))
sketch4.addConstraint(Sketcher.Constraint("Horizontal", 13))
sketch4.addConstraint(Sketcher.Constraint("Equal", 0, 1))
sketch4.addConstraint(Sketcher.Constraint("Equal", 3, 6))
sketch4.addConstraint(Sketcher.Constraint("Equal", 6, 9))
sketch4.addConstraint(Sketcher.Constraint("Equal", 9, 12))
sketch4.addConstraint(Sketcher.Constraint("PointOnObject", 6, 2, -1))
sketch4.addConstraint(Sketcher.Constraint("PointOnObject", 8, 2, -1))
sketch4.addConstraint(Sketcher.Constraint("Horizontal", 0, 3, 1, 3))
sketch4.addConstraint(Sketcher.Constraint("Horizontal", 3, 3, 12, 3))
sketch4.addConstraint(Sketcher.Constraint("Vertical", 3, 3, 6, 3))
sketch4.addConstraint(Sketcher.Constraint("Vertical", 9, 3, 12, 3))
sketch4.addConstraint(Sketcher.Constraint("Radius", 3, Q("4 mm")))
sketch4.addConstraint(Sketcher.Constraint("Diameter", 0, Q("1.6 mm")))
sketch4.addConstraint(Sketcher.Constraint("DistanceY", -1, 1, 0, 3, Q("5 mm")))
sketch4.addConstraint(Sketcher.Constraint("DistanceY", -1, 1, 3, 3, Q("6 mm")))
sketch4.addConstraint(Sketcher.Constraint("DistanceX", 0, 3, 3, 3, Q("1 mm")))
sketch4.addConstraint(Sketcher.Constraint("DistanceX", 9, 3, 1, 3, Q("1 mm")))
sketch4.addConstraint(Sketcher.Constraint("DistanceX", -1, 1, 0, 3, Q("19.803004 mm")))
sketch4.addConstraint(Sketcher.Constraint("DistanceX", -1, 1, 1, 3, Q("45.803097 mm")))
pocket3 = doc.addObject("PartDesign::Pocket", "Pocket002")
body.addObject(pocket3)
pocket3.Profile = sketch4
pocket3.Length = 2
pocket3.Reversed = True

sketch5 = doc.addObject("Sketcher::SketchObject", "Sketch004")
body.addObject(sketch5)
sketch5.AttachmentSupport = (doc.YZ_Plane, [""])
sketch5.MapMode = "FlatFace"
sketch5.AttachmentOffset = App.Placement(Vector(0, 0, 30.303051), App.Rotation())
sketch5.addGeometry(Part.Circle(Vector(31.5, 5, 0), Vector(0, 0, 1), 0.8), False)
sketch5.addConstraint(Sketcher.Constraint("Diameter", 0, Q("1.6 mm")))
sketch5.addConstraint(Sketcher.Constraint("DistanceY", -1, 1, 0, 3, Q("5 mm")))
sketch5.addConstraint(Sketcher.Constraint("DistanceX", -1, 1, 0, 3, Q("31.487492 mm")))
pocket4 = doc.addObject("PartDesign::Pocket", "Pocket003")
body.addObject(pocket4)
pocket4.Profile = sketch5
pocket4.Length = 3
pocket4.Reversed = True

sketch6 = doc.addObject("Sketcher::SketchObject", "Sketch005")
body.addObject(sketch6)
sketch6.AttachmentSupport = (doc.YZ_Plane, [""])
sketch6.MapMode = "FlatFace"
sketch6.AttachmentOffset = App.Placement(Vector(0, 0, 35.303235), App.Rotation())
sketch6.addGeometry(Part.Circle(Vector(31.5, 5, 0), Vector(0, 0, 1), 1.6), False)
sketch6.addConstraint(Sketcher.Constraint("Diameter", 0, Q("3.2 mm")))
sketch6.addConstraint(Sketcher.Constraint("DistanceY", -1, 1, 0, 3, Q("5 mm")))
sketch6.addConstraint(Sketcher.Constraint("DistanceX", -1, 1, 0, 3, Q("31.487492 mm")))
pocket5 = doc.addObject("PartDesign::Pocket", "Pocket004")
body.addObject(pocket5)
pocket5.Profile = sketch6
pocket5.Length = 3

sketch7 = doc.addObject("Sketcher::SketchObject", "Sketch006")
body.addObject(sketch7)
sketch7.AttachmentSupport = (doc.YZ_Plane, [""])
sketch7.MapMode = "FlatFace"
sketch7.AttachmentOffset = App.Placement(Vector(0, 0, 30.303051), App.Rotation())
sketch7.addGeometry(Part.LineSegment(Vector(34.5, 0, 0), Vector(30.5, 0, 0)), False)
sketch7.addGeometry(Part.ArcOfCircle(Part.Circle(Vector(30.5, 4, 0), Vector(0, 0, 1), 4), math.radians(-90), math.radians(0)), False)
sketch7.addGeometry(Part.LineSegment(Vector(34.5, 4, 0), Vector(34.5, 0, 0)), False)
sketch7.addGeometry(Part.LineSegment(Vector(34.5, 10, 0), Vector(34.5, 6, 0)), False)
sketch7.addGeometry(Part.ArcOfCircle(Part.Circle(Vector(30.5, 6, 0), Vector(0, 0, 1), 4), math.radians(0), math.radians(90)), False)
sketch7.addGeometry(Part.LineSegment(Vector(30.5, 10, 0), Vector(34.5, 10, 0)), False)
sketch7.addConstraint(Sketcher.Constraint("Tangent", 0, 2, 1, 1))
sketch7.addConstraint(Sketcher.Constraint("Tangent", 1, 2, 2, 1))
sketch7.addConstraint(Sketcher.Constraint("Coincident", 2, 2, 0, 1))
sketch7.addConstraint(Sketcher.Constraint("Tangent", 3, 2, 4, 1))
sketch7.addConstraint(Sketcher.Constraint("Tangent", 4, 2, 5, 1))
sketch7.addConstraint(Sketcher.Constraint("Coincident", 5, 2, 3, 1))
sketch7.addConstraint(Sketcher.Constraint("Horizontal", 0))
sketch7.addConstraint(Sketcher.Constraint("Vertical", 2))
sketch7.addConstraint(Sketcher.Constraint("Vertical", 3))
sketch7.addConstraint(Sketcher.Constraint("Horizontal", 5))
sketch7.addConstraint(Sketcher.Constraint("Equal", 1, 4))
sketch7.addConstraint(Sketcher.Constraint("PointOnObject", 0, 2, -1))
sketch7.addConstraint(Sketcher.Constraint("Vertical", 1, 3, 4, 3))
sketch7.addConstraint(Sketcher.Constraint("Radius", 1, Q("4 mm")))
sketch7.addConstraint(Sketcher.Constraint("DistanceY", -1, 1, 4, 3, Q("6 mm")))
sketch7.addConstraint(Sketcher.Constraint("DistanceX", -1, 1, 1, 3, Q("30.487492 mm")))
pocket6 = doc.addObject("PartDesign::Pocket", "Pocket005")
body.addObject(pocket6)
pocket6.Profile = sketch7
pocket6.Length = 10
pocket6.Reversed = True

sketch8 = doc.addObject("Sketcher::SketchObject", "Sketch007")
body.addObject(sketch8)
sketch8.AttachmentSupport = (doc.XY_Plane, [""])
sketch8.MapMode = "FlatFace"
sketch8.addGeometry(Part.LineSegment(Vector(33.3, 25.5, 0), Vector(33.3, 26.5, 0)), False)
sketch8.addGeometry(Part.ArcOfCircle(Part.Circle(Vector(32.8, 18.5, 0), Vector(0, 0, 1), 8), math.radians(94), math.radians(446)), False)
sketch8.addGeometry(Part.LineSegment(Vector(32.3, 26.5, 0), Vector(32.3, 25.5, 0)), False)
sketch8.addGeometry(Part.ArcOfCircle(Part.Circle(Vector(32.8, 18.5, 0), Vector(0, 0, 1), 7), math.radians(94), math.radians(446)), False)
sketch8.addConstraint(Sketcher.Constraint("Coincident", 0, 2, 1, 2))
sketch8.addConstraint(Sketcher.Constraint("Coincident", 1, 1, 2, 1))
sketch8.addConstraint(Sketcher.Constraint("Coincident", 2, 2, 3, 1))
sketch8.addConstraint(Sketcher.Constraint("Coincident", 3, 2, 0, 1))
sketch8.addConstraint(Sketcher.Constraint("Vertical", 0))
sketch8.addConstraint(Sketcher.Constraint("Vertical", 2))
sketch8.addConstraint(Sketcher.Constraint("Coincident", 3, 3, 1, 3))
sketch8.addConstraint(Sketcher.Constraint("Horizontal", 0, 2, 1, 1))
sketch8.addConstraint(Sketcher.Constraint("Radius", 3, Q("7 mm")))
sketch8.addConstraint(Sketcher.Constraint("DistanceX", 1, 1, 0, 2, Q("1 mm")))
sketch8.addConstraint(Sketcher.Constraint("DistanceY", -1, 1, 1, 3, Q("18.5 mm")))
sketch8.addConstraint(Sketcher.Constraint("Radius", 1, Q("7.999988 mm")))
sketch8.addConstraint(Sketcher.Constraint("DistanceX", -1, 1, 1, 3, Q("32.803051 mm")))
pad2 = doc.addObject("PartDesign::Pad", "Pad001")
body.addObject(pad2)
pad2.Profile = sketch8
pad2.Length = 2

doc.recompute()
